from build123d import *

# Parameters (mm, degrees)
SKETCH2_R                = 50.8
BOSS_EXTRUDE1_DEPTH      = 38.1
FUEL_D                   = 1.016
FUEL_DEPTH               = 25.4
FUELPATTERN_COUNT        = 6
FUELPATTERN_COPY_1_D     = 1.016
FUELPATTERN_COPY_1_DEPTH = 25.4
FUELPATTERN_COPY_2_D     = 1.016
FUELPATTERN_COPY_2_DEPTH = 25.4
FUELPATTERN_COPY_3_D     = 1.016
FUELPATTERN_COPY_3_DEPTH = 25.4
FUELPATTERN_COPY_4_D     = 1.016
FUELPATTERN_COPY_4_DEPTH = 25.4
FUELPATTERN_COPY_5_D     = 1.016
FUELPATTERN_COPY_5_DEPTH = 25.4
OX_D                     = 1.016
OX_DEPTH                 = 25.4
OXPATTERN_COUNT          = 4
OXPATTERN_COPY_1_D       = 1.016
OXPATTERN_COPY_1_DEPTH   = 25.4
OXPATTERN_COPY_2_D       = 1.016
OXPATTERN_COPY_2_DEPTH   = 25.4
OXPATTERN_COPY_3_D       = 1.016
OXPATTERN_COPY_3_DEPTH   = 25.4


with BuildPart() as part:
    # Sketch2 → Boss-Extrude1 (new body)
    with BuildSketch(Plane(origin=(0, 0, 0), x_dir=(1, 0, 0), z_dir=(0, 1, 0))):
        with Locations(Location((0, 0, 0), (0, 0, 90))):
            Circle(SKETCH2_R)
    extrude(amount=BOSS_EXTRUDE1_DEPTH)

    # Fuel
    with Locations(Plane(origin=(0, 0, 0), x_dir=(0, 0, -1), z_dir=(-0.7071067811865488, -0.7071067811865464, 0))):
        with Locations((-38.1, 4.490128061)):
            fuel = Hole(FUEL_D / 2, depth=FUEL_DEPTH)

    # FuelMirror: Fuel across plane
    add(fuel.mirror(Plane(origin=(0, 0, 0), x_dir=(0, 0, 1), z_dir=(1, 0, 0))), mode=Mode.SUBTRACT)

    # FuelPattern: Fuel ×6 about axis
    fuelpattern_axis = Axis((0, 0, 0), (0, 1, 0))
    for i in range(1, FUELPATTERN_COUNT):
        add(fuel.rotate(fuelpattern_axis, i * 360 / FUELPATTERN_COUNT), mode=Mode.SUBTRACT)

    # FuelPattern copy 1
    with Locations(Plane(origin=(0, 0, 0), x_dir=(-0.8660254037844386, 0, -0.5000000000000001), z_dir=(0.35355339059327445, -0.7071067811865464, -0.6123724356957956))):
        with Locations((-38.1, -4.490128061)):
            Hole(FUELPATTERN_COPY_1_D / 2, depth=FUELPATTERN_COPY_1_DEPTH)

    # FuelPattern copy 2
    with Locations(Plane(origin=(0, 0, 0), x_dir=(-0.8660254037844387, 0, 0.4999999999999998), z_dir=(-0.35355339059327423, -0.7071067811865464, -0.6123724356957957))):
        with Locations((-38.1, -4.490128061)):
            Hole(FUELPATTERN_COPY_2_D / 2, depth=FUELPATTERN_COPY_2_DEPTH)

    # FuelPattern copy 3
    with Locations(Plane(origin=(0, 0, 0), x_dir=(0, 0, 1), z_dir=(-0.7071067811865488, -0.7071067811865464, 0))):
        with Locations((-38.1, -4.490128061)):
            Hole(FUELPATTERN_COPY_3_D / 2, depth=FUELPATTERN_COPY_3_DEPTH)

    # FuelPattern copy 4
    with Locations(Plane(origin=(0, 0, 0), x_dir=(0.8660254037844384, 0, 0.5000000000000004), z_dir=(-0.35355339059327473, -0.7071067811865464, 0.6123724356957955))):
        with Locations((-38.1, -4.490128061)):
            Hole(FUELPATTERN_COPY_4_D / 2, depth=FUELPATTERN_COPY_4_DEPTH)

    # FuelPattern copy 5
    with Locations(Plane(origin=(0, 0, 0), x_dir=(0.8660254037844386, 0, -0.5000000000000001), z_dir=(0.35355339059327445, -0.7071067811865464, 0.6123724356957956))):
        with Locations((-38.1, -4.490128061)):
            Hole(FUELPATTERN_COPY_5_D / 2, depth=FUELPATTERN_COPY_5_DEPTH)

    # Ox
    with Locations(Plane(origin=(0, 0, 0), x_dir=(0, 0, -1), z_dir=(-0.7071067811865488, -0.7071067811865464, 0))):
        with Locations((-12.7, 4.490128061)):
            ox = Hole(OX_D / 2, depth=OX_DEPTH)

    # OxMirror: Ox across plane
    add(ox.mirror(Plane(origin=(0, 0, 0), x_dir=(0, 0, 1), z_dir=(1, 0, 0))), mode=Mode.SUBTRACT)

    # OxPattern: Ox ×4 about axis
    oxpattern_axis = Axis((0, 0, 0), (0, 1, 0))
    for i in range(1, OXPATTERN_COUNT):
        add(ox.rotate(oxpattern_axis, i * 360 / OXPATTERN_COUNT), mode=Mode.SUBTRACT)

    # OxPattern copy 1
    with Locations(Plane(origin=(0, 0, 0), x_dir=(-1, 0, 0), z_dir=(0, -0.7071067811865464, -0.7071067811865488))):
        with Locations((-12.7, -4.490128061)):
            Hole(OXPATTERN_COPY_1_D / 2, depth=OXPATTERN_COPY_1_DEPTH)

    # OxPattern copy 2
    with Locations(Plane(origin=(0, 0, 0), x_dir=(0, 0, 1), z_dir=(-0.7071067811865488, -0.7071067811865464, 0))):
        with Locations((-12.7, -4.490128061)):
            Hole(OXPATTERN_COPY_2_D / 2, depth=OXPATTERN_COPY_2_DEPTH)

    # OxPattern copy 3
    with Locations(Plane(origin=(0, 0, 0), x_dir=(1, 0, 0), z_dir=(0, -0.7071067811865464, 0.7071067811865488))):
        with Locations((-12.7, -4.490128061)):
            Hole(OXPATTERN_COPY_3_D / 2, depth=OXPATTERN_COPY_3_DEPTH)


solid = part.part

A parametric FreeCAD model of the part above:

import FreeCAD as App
import Part
import Sketcher

V = App.Vector
Q = App.Units.Quantity

doc = App.newDocument("Part")
body = doc.addObject("PartDesign::Body", "Body")

# Sketch on XZ plane
sketch1 = doc.addObject("Sketcher::SketchObject", "Sketch")
body.addObject(sketch1)
sketch1.AttachmentSupport = (doc.XZ_Plane, [""])
sketch1.MapMode = "FlatFace"
sketch1.addGeometry(Part.Circle(V(0, 0, 0), V(0, 0, 1), 51), False)
sketch1.addConstraint([
    Sketcher.Constraint("Coincident", 0, 3, -1, 1),
    Sketcher.Constraint("Diameter", 0, Q("4 in")),
])
pad1 = doc.addObject("PartDesign::Pad", "Pad")
body.addObject(pad1)
pad1.Profile = sketch1
pad1.Length = Q("1.5 in")
pad1.Reversed = True

# Sketch on an angled plane
sketch2 = doc.addObject("Sketcher::SketchObject", "Sketch001")
body.addObject(sketch2)
sketch2.Placement = App.Placement(V(0, 0, 0), App.Rotation(V(0, 0, -1), V(0.707106781, -0.707106781, 0), V(-0.707106781, -0.707106781, 0), "ZXY"))
sketch2.addGeometry(Part.Circle(V(-38.1, 4.5, 0), V(0, 0, 1), 0.5), False)
sketch2.addConstraint([
    Sketcher.Constraint("Diameter", 0, Q("0.04 in")),
    Sketcher.Constraint("DistanceX", 0, 3, -1, 1, Q("1.5 in")),
    Sketcher.Constraint("DistanceY", -1, 1, 0, 3, Q("4.490128 mm")),
])
doc.recompute()
hole = doc.addObject("PartDesign::Hole", "Hole")
body.addObject(hole)
hole.Profile = sketch2
hole.ThreadType = "None"
hole.Diameter = Q("0.04 in")
hole.DepthType = "Dimension"
hole.Depth = Q("1 in")
hole.DrillPoint = "Flat"
doc.recompute()

mirrored = doc.addObject("PartDesign::Mirrored", "Mirrored")
body.addObject(mirrored)
mirrored.Originals = [hole]
mirrored.MirrorPlane = (doc.YZ_Plane, [""])
body.Tip = mirrored
doc.recompute()

polarpattern = doc.addObject("PartDesign::PolarPattern", "PolarPattern")
body.addObject(polarpattern)
polarpattern.Originals = [hole]
polarpattern.Axis = (doc.Y_Axis, [""])
polarpattern.Angle = 360
polarpattern.Occurrences = 6
body.Tip = polarpattern

# Sketch on an angled plane
sketch3 = doc.addObject("Sketcher::SketchObject", "Sketch002")
body.addObject(sketch3)
sketch3.Placement = App.Placement(V(0, 0, 0), App.Rotation(V(-0.866025404, 0, -0.5), V(0.353553391, 0.707106782, -0.612372436), V(0.353553391, -0.707106781, -0.612372436), "ZXY"))
sketch3.addGeometry(Part.Circle(V(-38.1, -4.5, 0), V(0, 0, 1), 0.5), False)
sketch3.addConstraint([
    Sketcher.Constraint("Diameter", 0, Q("0.04 in")),
    Sketcher.Constraint("DistanceX", 0, 3, -1, 1, Q("1.5 in")),
    Sketcher.Constraint("DistanceY", 0, 3, -1, 1, Q("4.490128 mm")),
])
doc.recompute()
hole2 = doc.addObject("PartDesign::Hole", "Hole001")
body.addObject(hole2)
hole2.Profile = sketch3
hole2.ThreadType = "None"
hole2.Diameter = Q("0.04 in")
hole2.DepthType = "Dimension"
hole2.Depth = Q("1 in")
hole2.DrillPoint = "Flat"

# Sketch on an angled plane
sketch4 = doc.addObject("Sketcher::SketchObject", "Sketch003")
body.addObject(sketch4)
sketch4.Placement = App.Placement(V(0, 0, 0), App.Rotation(V(-0.866025404, 0, 0.5), V(-0.353553391, 0.707106782, -0.612372436), V(-0.353553391, -0.707106781, -0.612372436), "ZXY"))
sketch4.addGeometry(Part.Circle(V(-38.1, -4.5, 0), V(0, 0, 1), 0.5), False)
sketch4.addConstraint([
    Sketcher.Constraint("Diameter", 0, Q("0.04 in")),
    Sketcher.Constraint("DistanceX", 0, 3, -1, 1, Q("1.5 in")),
    Sketcher.Constraint("DistanceY", 0, 3, -1, 1, Q("4.490128 mm")),
])
doc.recompute()
hole3 = doc.addObject("PartDesign::Hole", "Hole002")
body.addObject(hole3)
hole3.Profile = sketch4
hole3.ThreadType = "None"
hole3.Diameter = Q("0.04 in")
hole3.DepthType = "Dimension"
hole3.Depth = Q("1 in")
hole3.DrillPoint = "Flat"

# Sketch on an angled plane
sketch5 = doc.addObject("Sketcher::SketchObject", "Sketch004")
body.addObject(sketch5)
sketch5.Placement = App.Placement(V(0, 0, 0), App.Rotation(V(0, 0, 1), V(-0.707106781, 0.707106781, 0), V(-0.707106781, -0.707106781, 0), "ZXY"))
sketch5.addGeometry(Part.Circle(V(-38.1, -4.5, 0), V(0, 0, 1), 0.5), False)
sketch5.addConstraint([
    Sketcher.Constraint("Diameter", 0, Q("0.04 in")),
    Sketcher.Constraint("DistanceX", 0, 3, -1, 1, Q("1.5 in")),
    Sketcher.Constraint("DistanceY", 0, 3, -1, 1, Q("4.490128 mm")),
])
doc.recompute()
hole4 = doc.addObject("PartDesign::Hole", "Hole003")
body.addObject(hole4)
hole4.Profile = sketch5
hole4.ThreadType = "None"
hole4.Diameter = Q("0.04 in")
hole4.DepthType = "Dimension"
hole4.Depth = Q("1 in")
hole4.DrillPoint = "Flat"

# Sketch on an angled plane
sketch6 = doc.addObject("Sketcher::SketchObject", "Sketch005")
body.addObject(sketch6)
sketch6.Placement = App.Placement(V(0, 0, 0), App.Rotation(V(0.866025404, 0, 0.5), V(-0.353553391, 0.707106782, 0.612372436), V(-0.353553391, -0.707106781, 0.612372436), "ZXY"))
sketch6.addGeometry(Part.Circle(V(-38.1, -4.5, 0), V(0, 0, 1), 0.5), False)
sketch6.addConstraint([
    Sketcher.Constraint("Diameter", 0, Q("0.04 in")),
    Sketcher.Constraint("DistanceX", 0, 3, -1, 1, Q("1.5 in")),
    Sketcher.Constraint("DistanceY", 0, 3, -1, 1, Q("4.490128 mm")),
])
doc.recompute()
hole5 = doc.addObject("PartDesign::Hole", "Hole004")
body.addObject(hole5)
hole5.Profile = sketch6
hole5.ThreadType = "None"
hole5.Diameter = Q("0.04 in")
hole5.DepthType = "Dimension"
hole5.Depth = Q("1 in")
hole5.DrillPoint = "Flat"

# Sketch on an angled plane
sketch7 = doc.addObject("Sketcher::SketchObject", "Sketch006")
body.addObject(sketch7)
sketch7.Placement = App.Placement(V(0, 0, 0), App.Rotation(V(0.866025404, 0, -0.5), V(0.353553391, 0.707106782, 0.612372436), V(0.353553391, -0.707106781, 0.612372436), "ZXY"))
sketch7.addGeometry(Part.Circle(V(-38.1, -4.5, 0), V(0, 0, 1), 0.5), False)
sketch7.addConstraint([
    Sketcher.Constraint("Diameter", 0, Q("0.04 in")),
    Sketcher.Constraint("DistanceX", 0, 3, -1, 1, Q("1.5 in")),
    Sketcher.Constraint("DistanceY", 0, 3, -1, 1, Q("4.490128 mm")),
])
doc.recompute()
hole6 = doc.addObject("PartDesign::Hole", "Hole005")
body.addObject(hole6)
hole6.Profile = sketch7
hole6.ThreadType = "None"
hole6.Diameter = Q("0.04 in")
hole6.DepthType = "Dimension"
hole6.Depth = Q("1 in")
hole6.DrillPoint = "Flat"

# Sketch on an angled plane
sketch8 = doc.addObject("Sketcher::SketchObject", "Sketch007")
body.addObject(sketch8)
sketch8.Placement = App.Placement(V(0, 0, 0), App.Rotation(V(0, 0, -1), V(0.707106781, -0.707106781, 0), V(-0.707106781, -0.707106781, 0), "ZXY"))
sketch8.addGeometry(Part.Circle(V(-12.7, 4.5, 0), V(0, 0, 1), 0.5), False)
sketch8.addConstraint([
    Sketcher.Constraint("Diameter", 0, Q("0.04 in")),
    Sketcher.Constraint("DistanceX", 0, 3, -1, 1, Q("0.5 in")),
    Sketcher.Constraint("DistanceY", -1, 1, 0, 3, Q("4.490128 mm")),
])
doc.recompute()
hole7 = doc.addObject("PartDesign::Hole", "Hole006")
body.addObject(hole7)
hole7.Profile = sketch8
hole7.ThreadType = "None"
hole7.Diameter = Q("0.04 in")
hole7.DepthType = "Dimension"
hole7.Depth = Q("1 in")
hole7.DrillPoint = "Flat"
doc.recompute()

mirrored2 = doc.addObject("PartDesign::Mirrored", "Mirrored001")
body.addObject(mirrored2)
mirrored2.Originals = [hole7]
mirrored2.MirrorPlane = (doc.YZ_Plane, [""])
body.Tip = mirrored2
doc.recompute()

polarpattern2 = doc.addObject("PartDesign::PolarPattern", "PolarPattern001")
body.addObject(polarpattern2)
polarpattern2.Originals = [hole7]
polarpattern2.Axis = (doc.Y_Axis, [""])
polarpattern2.Angle = 360
polarpattern2.Occurrences = 4
body.Tip = polarpattern2

# Sketch on an angled plane
sketch9 = doc.addObject("Sketcher::SketchObject", "Sketch008")
body.addObject(sketch9)
sketch9.Placement = App.Placement(V(0, 0, 0), App.Rotation(V(-1, 0, 0), V(0, 0.707106781, -0.707106781), V(0, -0.707106781, -0.707106781), "ZXY"))
sketch9.addGeometry(Part.Circle(V(-12.7, -4.5, 0), V(0, 0, 1), 0.5), False)
sketch9.addConstraint([
    Sketcher.Constraint("Diameter", 0, Q("0.04 in")),
    Sketcher.Constraint("DistanceX", 0, 3, -1, 1, Q("0.5 in")),
    Sketcher.Constraint("DistanceY", 0, 3, -1, 1, Q("4.490128 mm")),
])
doc.recompute()
hole8 = doc.addObject("PartDesign::Hole", "Hole007")
body.addObject(hole8)
hole8.Profile = sketch9
hole8.ThreadType = "None"
hole8.Diameter = Q("0.04 in")
hole8.DepthType = "Dimension"
hole8.Depth = Q("1 in")
hole8.DrillPoint = "Flat"

# Sketch on an angled plane
sketch10 = doc.addObject("Sketcher::SketchObject", "Sketch009")
body.addObject(sketch10)
sketch10.Placement = App.Placement(V(0, 0, 0), App.Rotation(V(0, 0, 1), V(-0.707106781, 0.707106781, 0), V(-0.707106781, -0.707106781, 0), "ZXY"))
sketch10.addGeometry(Part.Circle(V(-12.7, -4.5, 0), V(0, 0, 1), 0.5), False)
sketch10.addConstraint([
    Sketcher.Constraint("Diameter", 0, Q("0.04 in")),
    Sketcher.Constraint("DistanceX", 0, 3, -1, 1, Q("0.5 in")),
    Sketcher.Constraint("DistanceY", 0, 3, -1, 1, Q("4.490128 mm")),
])
doc.recompute()
hole9 = doc.addObject("PartDesign::Hole", "Hole008")
body.addObject(hole9)
hole9.Profile = sketch10
hole9.ThreadType = "None"
hole9.Diameter = Q("0.04 in")
hole9.DepthType = "Dimension"
hole9.Depth = Q("1 in")
hole9.DrillPoint = "Flat"

# Sketch on an angled plane
sketch11 = doc.addObject("Sketcher::SketchObject", "Sketch010")
body.addObject(sketch11)
sketch11.Placement = App.Placement(V(0, 0, 0), App.Rotation(V(1, 0, 0), V(0, 0.707106781, 0.707106781), V(0, -0.707106781, 0.707106781), "ZXY"))
sketch11.addGeometry(Part.Circle(V(-12.7, -4.5, 0), V(0, 0, 1), 0.5), False)
sketch11.addConstraint([
    Sketcher.Constraint("Diameter", 0, Q("0.04 in")),
    Sketcher.Constraint("DistanceX", 0, 3, -1, 1, Q("0.5 in")),
    Sketcher.Constraint("DistanceY", 0, 3, -1, 1, Q("4.490128 mm")),
])
doc.recompute()
hole10 = doc.addObject("PartDesign::Hole", "Hole009")
body.addObject(hole10)
hole10.Profile = sketch11
hole10.ThreadType = "None"
hole10.Diameter = Q("0.04 in")
hole10.DepthType = "Dimension"
hole10.Depth = Q("1 in")
hole10.DrillPoint = "Flat"

doc.recompute()
